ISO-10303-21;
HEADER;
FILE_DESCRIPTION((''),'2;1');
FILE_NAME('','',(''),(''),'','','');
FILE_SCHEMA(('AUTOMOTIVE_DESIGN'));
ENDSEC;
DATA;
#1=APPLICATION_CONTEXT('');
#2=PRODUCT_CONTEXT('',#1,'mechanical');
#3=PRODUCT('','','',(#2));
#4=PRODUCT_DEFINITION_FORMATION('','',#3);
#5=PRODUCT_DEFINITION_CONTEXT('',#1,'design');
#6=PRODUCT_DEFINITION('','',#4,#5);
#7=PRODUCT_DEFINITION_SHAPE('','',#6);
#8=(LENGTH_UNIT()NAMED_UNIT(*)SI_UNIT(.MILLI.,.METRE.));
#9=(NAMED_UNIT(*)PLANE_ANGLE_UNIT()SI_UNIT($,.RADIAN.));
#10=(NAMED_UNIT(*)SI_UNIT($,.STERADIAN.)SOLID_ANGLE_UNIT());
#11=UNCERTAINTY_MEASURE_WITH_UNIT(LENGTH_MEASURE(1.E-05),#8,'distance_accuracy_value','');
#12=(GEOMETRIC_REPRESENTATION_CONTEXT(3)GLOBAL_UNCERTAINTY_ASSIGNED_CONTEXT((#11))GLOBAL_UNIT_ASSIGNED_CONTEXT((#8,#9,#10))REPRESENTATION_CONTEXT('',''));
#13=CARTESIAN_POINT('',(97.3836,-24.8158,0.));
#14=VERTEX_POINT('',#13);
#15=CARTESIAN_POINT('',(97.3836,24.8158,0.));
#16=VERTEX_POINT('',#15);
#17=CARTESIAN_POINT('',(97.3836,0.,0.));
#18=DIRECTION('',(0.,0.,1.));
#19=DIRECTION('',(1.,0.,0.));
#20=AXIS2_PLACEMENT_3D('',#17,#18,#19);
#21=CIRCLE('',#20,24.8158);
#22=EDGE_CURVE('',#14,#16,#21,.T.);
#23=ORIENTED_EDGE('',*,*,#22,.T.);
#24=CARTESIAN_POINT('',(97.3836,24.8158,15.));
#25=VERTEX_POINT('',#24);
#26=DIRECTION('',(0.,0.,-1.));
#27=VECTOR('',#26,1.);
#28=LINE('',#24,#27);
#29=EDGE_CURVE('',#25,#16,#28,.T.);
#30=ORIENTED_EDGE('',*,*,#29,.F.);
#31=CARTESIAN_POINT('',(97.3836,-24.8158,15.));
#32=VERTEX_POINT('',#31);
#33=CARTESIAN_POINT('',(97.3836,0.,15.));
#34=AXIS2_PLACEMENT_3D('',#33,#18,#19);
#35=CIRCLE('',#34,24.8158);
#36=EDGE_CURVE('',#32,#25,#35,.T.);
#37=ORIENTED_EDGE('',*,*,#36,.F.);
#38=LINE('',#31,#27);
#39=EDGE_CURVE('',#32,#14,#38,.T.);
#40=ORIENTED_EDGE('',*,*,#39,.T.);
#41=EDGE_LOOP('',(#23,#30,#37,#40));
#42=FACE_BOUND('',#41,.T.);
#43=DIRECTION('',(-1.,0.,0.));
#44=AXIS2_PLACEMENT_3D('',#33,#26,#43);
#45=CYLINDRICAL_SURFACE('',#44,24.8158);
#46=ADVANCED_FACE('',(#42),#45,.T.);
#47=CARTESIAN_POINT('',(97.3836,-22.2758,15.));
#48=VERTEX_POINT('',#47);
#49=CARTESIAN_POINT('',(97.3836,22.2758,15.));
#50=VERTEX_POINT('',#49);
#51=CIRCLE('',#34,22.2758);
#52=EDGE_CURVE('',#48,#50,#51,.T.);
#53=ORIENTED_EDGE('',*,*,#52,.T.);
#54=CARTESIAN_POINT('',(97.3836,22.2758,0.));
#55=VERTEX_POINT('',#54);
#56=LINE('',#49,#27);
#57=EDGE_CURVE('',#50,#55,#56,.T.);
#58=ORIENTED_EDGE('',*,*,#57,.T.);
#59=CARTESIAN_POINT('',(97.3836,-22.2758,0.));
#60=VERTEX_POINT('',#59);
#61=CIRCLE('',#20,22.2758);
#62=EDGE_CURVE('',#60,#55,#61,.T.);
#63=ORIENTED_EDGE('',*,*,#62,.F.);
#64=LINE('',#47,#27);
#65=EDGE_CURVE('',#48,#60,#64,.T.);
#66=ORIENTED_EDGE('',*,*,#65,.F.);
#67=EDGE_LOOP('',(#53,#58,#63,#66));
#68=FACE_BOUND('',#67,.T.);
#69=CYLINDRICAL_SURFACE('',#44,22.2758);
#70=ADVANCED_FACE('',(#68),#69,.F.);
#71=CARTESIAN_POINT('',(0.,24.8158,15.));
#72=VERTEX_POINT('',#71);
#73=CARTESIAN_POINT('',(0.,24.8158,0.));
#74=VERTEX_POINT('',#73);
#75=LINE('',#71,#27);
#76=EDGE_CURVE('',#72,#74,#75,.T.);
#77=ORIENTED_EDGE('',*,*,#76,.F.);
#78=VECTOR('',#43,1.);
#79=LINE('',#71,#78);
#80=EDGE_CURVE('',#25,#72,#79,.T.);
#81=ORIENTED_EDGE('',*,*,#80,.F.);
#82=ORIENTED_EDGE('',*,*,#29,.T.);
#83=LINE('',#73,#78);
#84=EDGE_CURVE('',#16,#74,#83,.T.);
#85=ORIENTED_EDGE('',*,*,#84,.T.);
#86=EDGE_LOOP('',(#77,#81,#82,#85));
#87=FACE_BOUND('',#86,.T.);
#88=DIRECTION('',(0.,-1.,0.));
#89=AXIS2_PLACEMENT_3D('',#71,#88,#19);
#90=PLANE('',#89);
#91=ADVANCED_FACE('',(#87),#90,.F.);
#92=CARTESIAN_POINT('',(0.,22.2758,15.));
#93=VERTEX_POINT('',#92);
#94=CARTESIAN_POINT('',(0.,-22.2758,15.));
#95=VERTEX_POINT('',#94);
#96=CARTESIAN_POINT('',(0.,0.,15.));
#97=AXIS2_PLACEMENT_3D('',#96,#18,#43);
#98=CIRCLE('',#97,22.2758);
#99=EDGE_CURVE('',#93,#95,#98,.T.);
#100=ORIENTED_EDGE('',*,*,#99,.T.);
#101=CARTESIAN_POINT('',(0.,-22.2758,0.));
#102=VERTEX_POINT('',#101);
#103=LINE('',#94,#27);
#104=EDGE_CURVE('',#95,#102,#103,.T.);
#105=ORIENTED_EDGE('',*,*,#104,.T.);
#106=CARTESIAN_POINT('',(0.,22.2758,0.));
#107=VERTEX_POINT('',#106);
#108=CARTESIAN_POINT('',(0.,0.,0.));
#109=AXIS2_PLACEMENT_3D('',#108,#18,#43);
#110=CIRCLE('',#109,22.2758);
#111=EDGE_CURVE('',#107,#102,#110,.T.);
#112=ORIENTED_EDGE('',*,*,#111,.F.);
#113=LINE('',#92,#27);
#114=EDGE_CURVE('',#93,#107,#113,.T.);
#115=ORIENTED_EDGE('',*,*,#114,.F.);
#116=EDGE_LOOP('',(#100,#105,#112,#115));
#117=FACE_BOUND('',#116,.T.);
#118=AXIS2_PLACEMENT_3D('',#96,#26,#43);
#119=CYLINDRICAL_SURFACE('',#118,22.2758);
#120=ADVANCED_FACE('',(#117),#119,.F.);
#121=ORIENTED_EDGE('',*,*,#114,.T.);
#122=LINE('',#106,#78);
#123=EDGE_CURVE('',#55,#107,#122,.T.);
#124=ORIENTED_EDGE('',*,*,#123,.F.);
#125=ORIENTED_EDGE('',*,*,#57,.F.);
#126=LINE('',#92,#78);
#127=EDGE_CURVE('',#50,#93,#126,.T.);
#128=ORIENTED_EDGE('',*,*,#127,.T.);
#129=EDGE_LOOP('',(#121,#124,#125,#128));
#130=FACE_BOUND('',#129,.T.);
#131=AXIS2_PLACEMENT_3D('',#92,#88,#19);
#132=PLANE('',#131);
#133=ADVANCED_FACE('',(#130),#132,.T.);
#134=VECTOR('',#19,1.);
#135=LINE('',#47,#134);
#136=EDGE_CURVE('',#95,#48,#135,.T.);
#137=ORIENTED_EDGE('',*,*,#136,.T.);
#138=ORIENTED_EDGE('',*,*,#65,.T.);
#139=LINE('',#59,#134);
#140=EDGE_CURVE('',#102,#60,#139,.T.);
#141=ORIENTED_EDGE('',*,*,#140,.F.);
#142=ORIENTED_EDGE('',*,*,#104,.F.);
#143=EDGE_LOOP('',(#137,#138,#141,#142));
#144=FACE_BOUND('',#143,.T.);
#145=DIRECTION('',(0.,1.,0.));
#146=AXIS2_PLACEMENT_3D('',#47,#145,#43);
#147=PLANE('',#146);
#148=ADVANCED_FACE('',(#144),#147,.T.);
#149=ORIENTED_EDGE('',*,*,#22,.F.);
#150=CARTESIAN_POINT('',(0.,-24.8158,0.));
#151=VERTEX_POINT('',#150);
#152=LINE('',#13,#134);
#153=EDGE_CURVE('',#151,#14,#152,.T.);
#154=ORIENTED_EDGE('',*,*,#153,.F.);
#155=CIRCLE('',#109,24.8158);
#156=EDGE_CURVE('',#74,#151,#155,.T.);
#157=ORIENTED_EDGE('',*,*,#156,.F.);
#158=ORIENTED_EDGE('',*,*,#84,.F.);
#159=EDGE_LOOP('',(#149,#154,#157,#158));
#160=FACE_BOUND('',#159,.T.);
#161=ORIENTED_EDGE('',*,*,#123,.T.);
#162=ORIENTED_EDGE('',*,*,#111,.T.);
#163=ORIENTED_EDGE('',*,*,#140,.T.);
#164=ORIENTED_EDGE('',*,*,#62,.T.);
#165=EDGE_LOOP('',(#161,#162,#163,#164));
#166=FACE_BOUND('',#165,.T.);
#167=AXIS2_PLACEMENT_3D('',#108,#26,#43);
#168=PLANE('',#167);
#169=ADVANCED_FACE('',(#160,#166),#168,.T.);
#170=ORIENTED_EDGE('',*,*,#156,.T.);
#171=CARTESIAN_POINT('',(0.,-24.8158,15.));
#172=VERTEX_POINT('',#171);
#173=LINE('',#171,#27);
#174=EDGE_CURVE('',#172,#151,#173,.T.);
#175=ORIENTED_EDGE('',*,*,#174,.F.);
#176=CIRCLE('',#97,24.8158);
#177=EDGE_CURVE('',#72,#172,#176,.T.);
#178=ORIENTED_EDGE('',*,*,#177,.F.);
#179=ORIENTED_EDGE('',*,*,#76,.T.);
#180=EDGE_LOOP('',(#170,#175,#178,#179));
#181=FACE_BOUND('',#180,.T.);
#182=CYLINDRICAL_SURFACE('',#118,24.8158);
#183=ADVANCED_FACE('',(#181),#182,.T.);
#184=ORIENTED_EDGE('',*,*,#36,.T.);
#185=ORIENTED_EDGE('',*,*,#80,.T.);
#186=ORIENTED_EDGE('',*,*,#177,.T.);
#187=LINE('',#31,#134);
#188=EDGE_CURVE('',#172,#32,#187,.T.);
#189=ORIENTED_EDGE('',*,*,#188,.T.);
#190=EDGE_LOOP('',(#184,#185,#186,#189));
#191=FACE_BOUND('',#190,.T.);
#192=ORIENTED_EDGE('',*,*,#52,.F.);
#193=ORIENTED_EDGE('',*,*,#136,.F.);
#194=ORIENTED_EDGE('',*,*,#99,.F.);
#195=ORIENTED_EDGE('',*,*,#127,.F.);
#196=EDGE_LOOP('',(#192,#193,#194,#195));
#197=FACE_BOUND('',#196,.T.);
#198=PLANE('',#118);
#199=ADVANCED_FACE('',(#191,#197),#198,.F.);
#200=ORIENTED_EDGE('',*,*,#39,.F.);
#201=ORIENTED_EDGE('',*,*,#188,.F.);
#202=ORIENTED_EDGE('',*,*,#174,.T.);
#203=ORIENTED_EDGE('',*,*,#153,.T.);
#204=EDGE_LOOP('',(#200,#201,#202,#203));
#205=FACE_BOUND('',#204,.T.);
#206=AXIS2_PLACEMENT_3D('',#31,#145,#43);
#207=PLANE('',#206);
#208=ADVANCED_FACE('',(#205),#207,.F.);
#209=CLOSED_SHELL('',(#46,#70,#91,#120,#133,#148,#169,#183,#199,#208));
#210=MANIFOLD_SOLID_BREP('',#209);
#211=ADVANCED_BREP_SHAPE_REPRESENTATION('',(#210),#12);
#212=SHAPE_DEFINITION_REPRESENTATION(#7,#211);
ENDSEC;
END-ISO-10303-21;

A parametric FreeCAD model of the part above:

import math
import FreeCAD as App
import Part
import Sketcher
from FreeCAD import Vector
Q = App.Units.Quantity

doc = App.newDocument("Part")
body = doc.addObject("PartDesign::Body", "Body")

# Sketch on XY plane
sketch1 = body.newObject("Sketcher::SketchObject", "Sketch")
sketch1.AttachmentSupport = (doc.getObject("XY_Plane"), [""])
sketch1.MapMode = "FlatFace"
sketch1.addGeometry(Part.LineSegment(Vector(97.3836, 24.8158, 0), Vector(0, 24.8158, 0)), False)
sketch1.addGeometry(Part.ArcOfCircle(Part.Circle(Vector(0, 0, 0), Vector(0, 0, 1), 24.8158), math.radians(90), math.radians(270)), False)
sketch1.addGeometry(Part.LineSegment(Vector(0, -24.8158, 0), Vector(97.3836, -24.8158, 0)), False)
sketch1.addGeometry(Part.ArcOfCircle(Part.Circle(Vector(97.3836, 0, 0), Vector(0, 0, 1), 24.8158), math.radians(-90), math.radians(90)), False)
sketch1.addGeometry(Part.LineSegment(Vector(0, 22.2758, 0), Vector(97.3836, 22.2758, 0)), False)
sketch1.addGeometry(Part.ArcOfCircle(Part.Circle(Vector(97.3836, 0, 0), Vector(0, 0, 1), 22.2758), math.radians(-90), math.radians(90)), False)
sketch1.addGeometry(Part.LineSegment(Vector(97.3836, -22.2758, 0), Vector(0, -22.2758, 0)), False)
sketch1.addGeometry(Part.ArcOfCircle(Part.Circle(Vector(0, 0, 0), Vector(0, 0, 1), 22.2758), math.radians(90), math.radians(270)), False)
sketch1.addConstraint(Sketcher.Constraint("Tangent", 0, 2, 1, 1))
sketch1.addConstraint(Sketcher.Constraint("Tangent", 1, 2, 2, 1))
sketch1.addConstraint(Sketcher.Constraint("Tangent", 2, 2, 3, 1))
sketch1.addConstraint(Sketcher.Constraint("Tangent", 3, 2, 0, 1))
sketch1.addConstraint(Sketcher.Constraint("Tangent", 4, 2, 5, 2))
sketch1.addConstraint(Sketcher.Constraint("Tangent", 5, 1, 6, 1))
sketch1.addConstraint(Sketcher.Constraint("Tangent", 6, 2, 7, 2))
sketch1.addConstraint(Sketcher.Constraint("Tangent", 7, 1, 4, 1))
sketch1.addConstraint(Sketcher.Constraint("Horizontal", 0))
sketch1.addConstraint(Sketcher.Constraint("Horizontal", 2))
sketch1.addConstraint(Sketcher.Constraint("Horizontal", 4))
sketch1.addConstraint(Sketcher.Constraint("Horizontal", 6))
sketch1.addConstraint(Sketcher.Constraint("Coincident", 1, 3, -1, 1))
sketch1.addConstraint(Sketcher.Constraint("Coincident", 7, 3, -1, 1))
sketch1.addConstraint(Sketcher.Constraint("Vertical", 5, 3, 2, 2))
sketch1.addConstraint(Sketcher.Constraint("Radius", 1, Q("0.977 in")))
sketch1.addConstraint(Sketcher.Constraint("Radius", 5, Q("0.877 in")))
sketch1.addConstraint(Sketcher.Constraint("DistanceX", 0, 2, 0, 1, Q("3.834 in")))
pad1 = body.newObject("PartDesign::Pad", "Pad")
pad1.Profile = sketch1
pad1.Length = 15

doc.recompute()
